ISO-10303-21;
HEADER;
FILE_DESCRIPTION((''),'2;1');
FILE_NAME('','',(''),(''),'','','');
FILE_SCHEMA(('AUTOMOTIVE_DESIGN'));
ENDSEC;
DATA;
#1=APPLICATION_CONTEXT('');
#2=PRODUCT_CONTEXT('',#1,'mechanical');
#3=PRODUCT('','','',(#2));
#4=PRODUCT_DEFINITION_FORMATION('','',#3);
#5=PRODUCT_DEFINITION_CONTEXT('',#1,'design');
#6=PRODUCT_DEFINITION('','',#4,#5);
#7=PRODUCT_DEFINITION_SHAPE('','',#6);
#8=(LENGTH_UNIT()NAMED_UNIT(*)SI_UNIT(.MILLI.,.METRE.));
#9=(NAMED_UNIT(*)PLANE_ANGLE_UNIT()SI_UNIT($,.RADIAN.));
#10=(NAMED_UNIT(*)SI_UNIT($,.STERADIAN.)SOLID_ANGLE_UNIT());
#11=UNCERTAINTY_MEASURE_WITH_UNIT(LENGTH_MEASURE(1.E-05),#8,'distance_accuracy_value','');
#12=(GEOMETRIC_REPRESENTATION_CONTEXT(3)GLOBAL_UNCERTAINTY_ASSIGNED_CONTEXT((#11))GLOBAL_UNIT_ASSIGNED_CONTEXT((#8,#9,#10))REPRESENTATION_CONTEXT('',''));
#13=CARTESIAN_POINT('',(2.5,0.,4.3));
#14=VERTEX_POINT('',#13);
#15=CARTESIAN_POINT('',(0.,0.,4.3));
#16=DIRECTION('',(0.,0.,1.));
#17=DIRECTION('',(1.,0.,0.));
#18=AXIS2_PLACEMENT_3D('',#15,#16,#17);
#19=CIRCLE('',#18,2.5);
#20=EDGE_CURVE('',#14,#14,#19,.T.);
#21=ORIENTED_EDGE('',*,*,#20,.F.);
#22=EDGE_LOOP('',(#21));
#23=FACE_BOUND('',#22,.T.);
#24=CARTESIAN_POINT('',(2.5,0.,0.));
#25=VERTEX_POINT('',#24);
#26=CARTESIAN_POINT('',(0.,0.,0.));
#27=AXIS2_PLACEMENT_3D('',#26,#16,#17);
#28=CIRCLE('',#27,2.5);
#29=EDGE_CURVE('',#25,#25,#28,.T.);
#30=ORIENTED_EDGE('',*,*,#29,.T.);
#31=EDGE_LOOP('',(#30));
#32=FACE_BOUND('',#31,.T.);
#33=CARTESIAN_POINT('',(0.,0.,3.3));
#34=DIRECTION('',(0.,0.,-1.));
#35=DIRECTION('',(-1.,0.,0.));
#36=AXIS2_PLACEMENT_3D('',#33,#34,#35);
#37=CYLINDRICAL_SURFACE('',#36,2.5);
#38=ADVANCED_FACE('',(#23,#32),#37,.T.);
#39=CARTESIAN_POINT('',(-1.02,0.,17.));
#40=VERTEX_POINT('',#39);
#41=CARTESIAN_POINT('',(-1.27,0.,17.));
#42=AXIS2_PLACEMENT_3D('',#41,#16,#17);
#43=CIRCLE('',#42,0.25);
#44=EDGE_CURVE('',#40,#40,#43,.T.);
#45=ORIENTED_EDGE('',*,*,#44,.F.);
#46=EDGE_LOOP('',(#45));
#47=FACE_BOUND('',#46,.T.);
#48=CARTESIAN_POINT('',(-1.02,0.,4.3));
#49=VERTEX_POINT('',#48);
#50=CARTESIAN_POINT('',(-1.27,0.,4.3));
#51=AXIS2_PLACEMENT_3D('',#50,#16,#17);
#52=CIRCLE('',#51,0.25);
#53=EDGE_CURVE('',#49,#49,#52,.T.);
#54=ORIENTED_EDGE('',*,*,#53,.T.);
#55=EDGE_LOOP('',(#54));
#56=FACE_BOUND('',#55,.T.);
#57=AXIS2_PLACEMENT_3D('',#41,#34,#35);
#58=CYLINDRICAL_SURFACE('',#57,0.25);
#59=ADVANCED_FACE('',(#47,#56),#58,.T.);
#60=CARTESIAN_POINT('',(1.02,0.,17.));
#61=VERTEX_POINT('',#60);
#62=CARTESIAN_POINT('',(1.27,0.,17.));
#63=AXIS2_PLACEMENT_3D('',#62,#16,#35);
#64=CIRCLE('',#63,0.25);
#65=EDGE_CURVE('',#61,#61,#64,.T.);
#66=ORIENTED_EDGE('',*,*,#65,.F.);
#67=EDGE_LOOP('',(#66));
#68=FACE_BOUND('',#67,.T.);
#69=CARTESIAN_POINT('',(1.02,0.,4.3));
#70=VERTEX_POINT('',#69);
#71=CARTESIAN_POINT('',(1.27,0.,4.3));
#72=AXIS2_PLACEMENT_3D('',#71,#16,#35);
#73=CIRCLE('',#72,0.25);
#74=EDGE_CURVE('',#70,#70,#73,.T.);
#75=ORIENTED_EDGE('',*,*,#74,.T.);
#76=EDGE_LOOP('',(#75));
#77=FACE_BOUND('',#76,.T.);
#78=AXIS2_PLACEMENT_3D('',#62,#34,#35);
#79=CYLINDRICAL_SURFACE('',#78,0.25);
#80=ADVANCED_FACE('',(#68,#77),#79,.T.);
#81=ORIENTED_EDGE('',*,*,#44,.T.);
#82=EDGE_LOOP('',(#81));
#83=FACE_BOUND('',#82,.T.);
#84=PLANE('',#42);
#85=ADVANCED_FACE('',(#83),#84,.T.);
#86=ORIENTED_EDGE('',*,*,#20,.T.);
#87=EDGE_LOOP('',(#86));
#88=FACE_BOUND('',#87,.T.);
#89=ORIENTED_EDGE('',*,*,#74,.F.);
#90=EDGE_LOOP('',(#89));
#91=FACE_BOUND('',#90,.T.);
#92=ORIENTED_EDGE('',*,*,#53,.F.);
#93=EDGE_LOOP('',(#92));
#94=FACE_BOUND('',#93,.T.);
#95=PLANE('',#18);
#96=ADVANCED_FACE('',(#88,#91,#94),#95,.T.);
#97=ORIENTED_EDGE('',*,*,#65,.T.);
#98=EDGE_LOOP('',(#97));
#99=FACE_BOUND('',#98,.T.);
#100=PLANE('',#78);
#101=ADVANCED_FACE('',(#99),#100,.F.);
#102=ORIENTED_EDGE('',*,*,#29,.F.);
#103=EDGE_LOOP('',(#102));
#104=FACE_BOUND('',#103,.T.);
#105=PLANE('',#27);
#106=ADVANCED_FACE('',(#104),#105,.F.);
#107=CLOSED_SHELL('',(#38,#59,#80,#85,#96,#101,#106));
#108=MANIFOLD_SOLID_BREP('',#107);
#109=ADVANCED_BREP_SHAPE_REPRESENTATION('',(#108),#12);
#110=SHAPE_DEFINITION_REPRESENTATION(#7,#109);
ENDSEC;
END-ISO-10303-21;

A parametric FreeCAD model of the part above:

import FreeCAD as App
import Part
import Sketcher

doc = App.newDocument("Part")
params = doc.addObject("Spreadsheet::Sheet", "Params")
for row, (alias, value) in enumerate([
    ("sketch1_diameter", "5 mm"),
    ("pad1_length", "3.3 mm"),
    ("sketch2_diameter", "5 mm"),
    ("pad2_length", "1 mm"),
    ("sketch3_diameter", "0.5 mm"),
    ("pad3_length", "12.7 mm"),
], start=1):
    params.set(f"A{row}", alias)
    params.set(f"B{row}", "=" + value)
    params.setAlias(f"B{row}", alias)

body = doc.addObject("PartDesign::Body", "Body")

# Sketch on XY plane
sketch1 = body.newObject("Sketcher::SketchObject", "Sketch")
sketch1.AttachmentSupport = (doc.getObject("XY_Plane"), [""])
sketch1.MapMode = "FlatFace"
sketch1.addGeometry(Part.Circle(App.Vector(0, 0, 0), App.Vector(0, 0, 1), 2.5), False)
sketch1.addConstraint([
    Sketcher.Constraint("Coincident", 0, 3, -1, 1),
    Sketcher.Constraint("Diameter", 0, 5.0),
])
sketch1.setExpression("Constraints[1]", "Params.sketch1_diameter")
pad1 = body.newObject("PartDesign::Pad", "Pad")
pad1.Profile = sketch1
pad1.setExpression("Length", "Params.pad1_length")

# Sketch on XY plane
sketch2 = body.newObject("Sketcher::SketchObject", "Sketch001")
sketch2.AttachmentSupport = (doc.getObject("XY_Plane"), [""])
sketch2.MapMode = "FlatFace"
sketch2.AttachmentOffset = App.Placement(App.Vector(0, 0, 3.3), App.Rotation())
sketch2.addGeometry(Part.Circle(App.Vector(0, 0, 0), App.Vector(0, 0, 1), 2.5), False)
sketch2.addConstraint([
    Sketcher.Constraint("Coincident", 0, 3, -1, 1),
    Sketcher.Constraint("Diameter", 0, 5.0),
])
sketch2.setExpression("Constraints[1]", "Params.sketch2_diameter")
pad2 = body.newObject("PartDesign::Pad", "Pad001")
pad2.Profile = sketch2
pad2.setExpression("Length", "Params.pad2_length")

# Sketch on XY plane
sketch3 = body.newObject("Sketcher::SketchObject", "Sketch002")
sketch3.AttachmentSupport = (doc.getObject("XY_Plane"), [""])
sketch3.MapMode = "FlatFace"
sketch3.AttachmentOffset = App.Placement(App.Vector(0, 0, 4.3), App.Rotation())
sketch3.addGeometry([
    Part.Circle(App.Vector(-1.27, 0, 0), App.Vector(0, 0, 1), 0.25),
    Part.Circle(App.Vector(1.27, 0, 0), App.Vector(0, 0, 1), 0.25),
], False)
sketch3.addConstraint([
    Sketcher.Constraint("Equal", 0, 1),
    Sketcher.Constraint("Symmetric", 0, 3, 1, 3, -1, 1),
    Sketcher.Constraint("PointOnObject", 0, 3, -1),
    Sketcher.Constraint("Diameter", 0, 0.5),
    Sketcher.Constraint("DistanceX", 0, 3, -1, 1, 1.27),
])
sketch3.setExpression("Constraints[3]", "Params.sketch3_diameter")
pad3 = body.newObject("PartDesign::Pad", "Pad002")
pad3.Profile = sketch3
pad3.setExpression("Length", "Params.pad3_length")

doc.recompute()
